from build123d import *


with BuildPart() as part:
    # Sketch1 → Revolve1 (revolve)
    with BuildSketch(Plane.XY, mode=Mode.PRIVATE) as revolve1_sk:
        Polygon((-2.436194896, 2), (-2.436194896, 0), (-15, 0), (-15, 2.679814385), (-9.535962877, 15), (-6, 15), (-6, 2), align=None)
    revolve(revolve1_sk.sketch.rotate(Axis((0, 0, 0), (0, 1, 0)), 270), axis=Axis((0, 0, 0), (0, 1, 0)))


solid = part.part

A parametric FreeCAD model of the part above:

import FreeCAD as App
import Part
import Sketcher
from FreeCAD import Vector
Q = App.Units.Quantity


def add_polygon(sketch, points):
    """Adds a closed chain of lines whose ends are joined by coincident constraints."""
    first, n = sketch.GeometryCount, len(points)
    for a, b in zip(points, points[1:] + points[:1]):
        sketch.addGeometry(Part.LineSegment(App.Vector(*a, 0), App.Vector(*b, 0)), False)
    for i in range(n):
        sketch.addConstraint(Sketcher.Constraint("Coincident", first + i, 2, first + (i + 1) % n, 1))

doc = App.newDocument("Part")
params = doc.addObject("Spreadsheet::Sheet", "Params")
for row, (alias, value) in enumerate([
    ("sketch1_height", "2 mm"),
    ("sketch1_height2", "13 mm"),
    ("revolution_angle", "360 deg"),
], start=1):
    params.set(f"A{row}", alias)
    params.set(f"B{row}", "=" + value)
    params.setAlias(f"B{row}", alias)

body = doc.addObject("PartDesign::Body", "Body")

sketch1 = body.newObject("Sketcher::SketchObject", "Sketch")
sketch1.AttachmentSupport = (doc.getObject("XY_Plane"), [""])
sketch1.MapMode = "FlatFace"
add_polygon(sketch1, [(-2.4, 0), (-2.4, 2), (-6, 2), (-6, 15), (-9.5, 15), (-15, 2.7), (-15, 0)])
sketch1.addConstraint([
    Sketcher.Constraint("Vertical", 0),
    Sketcher.Constraint("Horizontal", 1),
    Sketcher.Constraint("Vertical", 2),
    Sketcher.Constraint("Horizontal", 3),
    Sketcher.Constraint("Vertical", 5),
    Sketcher.Constraint("Horizontal", 6),
    Sketcher.Constraint("PointOnObject", 5, 2, -1),
    Sketcher.Constraint("DistanceY", 0, 1, 0, 2, Q("2 mm")),
    Sketcher.Constraint("DistanceY", 2, 1, 2, 2, Q("13 mm")),
    Sketcher.Constraint("DistanceX", 1, 2, -1, 1, Q("6 mm")),
    Sketcher.Constraint("DistanceX", 4, 2, -1, 1, Q("15 mm")),
    Sketcher.Constraint("DistanceX", 1, 2, 1, 1, Q("3.563805 mm")),
    Sketcher.Constraint("DistanceX", 3, 2, 3, 1, Q("3.535963 mm")),
    Sketcher.Constraint("DistanceY", 5, 2, 5, 1, Q("2.679814 mm")),
])
sketch1.setExpression("Constraints[14]", "Params.sketch1_height")
sketch1.setExpression("Constraints[15]", "Params.sketch1_height2")
revolution = body.newObject("PartDesign::Revolution", "Revolution")
revolution.Profile = sketch1
revolution.ReferenceAxis = (sketch1, ["V_Axis"])
revolution.setExpression("Angle", "Params.revolution_angle")

doc.recompute()
